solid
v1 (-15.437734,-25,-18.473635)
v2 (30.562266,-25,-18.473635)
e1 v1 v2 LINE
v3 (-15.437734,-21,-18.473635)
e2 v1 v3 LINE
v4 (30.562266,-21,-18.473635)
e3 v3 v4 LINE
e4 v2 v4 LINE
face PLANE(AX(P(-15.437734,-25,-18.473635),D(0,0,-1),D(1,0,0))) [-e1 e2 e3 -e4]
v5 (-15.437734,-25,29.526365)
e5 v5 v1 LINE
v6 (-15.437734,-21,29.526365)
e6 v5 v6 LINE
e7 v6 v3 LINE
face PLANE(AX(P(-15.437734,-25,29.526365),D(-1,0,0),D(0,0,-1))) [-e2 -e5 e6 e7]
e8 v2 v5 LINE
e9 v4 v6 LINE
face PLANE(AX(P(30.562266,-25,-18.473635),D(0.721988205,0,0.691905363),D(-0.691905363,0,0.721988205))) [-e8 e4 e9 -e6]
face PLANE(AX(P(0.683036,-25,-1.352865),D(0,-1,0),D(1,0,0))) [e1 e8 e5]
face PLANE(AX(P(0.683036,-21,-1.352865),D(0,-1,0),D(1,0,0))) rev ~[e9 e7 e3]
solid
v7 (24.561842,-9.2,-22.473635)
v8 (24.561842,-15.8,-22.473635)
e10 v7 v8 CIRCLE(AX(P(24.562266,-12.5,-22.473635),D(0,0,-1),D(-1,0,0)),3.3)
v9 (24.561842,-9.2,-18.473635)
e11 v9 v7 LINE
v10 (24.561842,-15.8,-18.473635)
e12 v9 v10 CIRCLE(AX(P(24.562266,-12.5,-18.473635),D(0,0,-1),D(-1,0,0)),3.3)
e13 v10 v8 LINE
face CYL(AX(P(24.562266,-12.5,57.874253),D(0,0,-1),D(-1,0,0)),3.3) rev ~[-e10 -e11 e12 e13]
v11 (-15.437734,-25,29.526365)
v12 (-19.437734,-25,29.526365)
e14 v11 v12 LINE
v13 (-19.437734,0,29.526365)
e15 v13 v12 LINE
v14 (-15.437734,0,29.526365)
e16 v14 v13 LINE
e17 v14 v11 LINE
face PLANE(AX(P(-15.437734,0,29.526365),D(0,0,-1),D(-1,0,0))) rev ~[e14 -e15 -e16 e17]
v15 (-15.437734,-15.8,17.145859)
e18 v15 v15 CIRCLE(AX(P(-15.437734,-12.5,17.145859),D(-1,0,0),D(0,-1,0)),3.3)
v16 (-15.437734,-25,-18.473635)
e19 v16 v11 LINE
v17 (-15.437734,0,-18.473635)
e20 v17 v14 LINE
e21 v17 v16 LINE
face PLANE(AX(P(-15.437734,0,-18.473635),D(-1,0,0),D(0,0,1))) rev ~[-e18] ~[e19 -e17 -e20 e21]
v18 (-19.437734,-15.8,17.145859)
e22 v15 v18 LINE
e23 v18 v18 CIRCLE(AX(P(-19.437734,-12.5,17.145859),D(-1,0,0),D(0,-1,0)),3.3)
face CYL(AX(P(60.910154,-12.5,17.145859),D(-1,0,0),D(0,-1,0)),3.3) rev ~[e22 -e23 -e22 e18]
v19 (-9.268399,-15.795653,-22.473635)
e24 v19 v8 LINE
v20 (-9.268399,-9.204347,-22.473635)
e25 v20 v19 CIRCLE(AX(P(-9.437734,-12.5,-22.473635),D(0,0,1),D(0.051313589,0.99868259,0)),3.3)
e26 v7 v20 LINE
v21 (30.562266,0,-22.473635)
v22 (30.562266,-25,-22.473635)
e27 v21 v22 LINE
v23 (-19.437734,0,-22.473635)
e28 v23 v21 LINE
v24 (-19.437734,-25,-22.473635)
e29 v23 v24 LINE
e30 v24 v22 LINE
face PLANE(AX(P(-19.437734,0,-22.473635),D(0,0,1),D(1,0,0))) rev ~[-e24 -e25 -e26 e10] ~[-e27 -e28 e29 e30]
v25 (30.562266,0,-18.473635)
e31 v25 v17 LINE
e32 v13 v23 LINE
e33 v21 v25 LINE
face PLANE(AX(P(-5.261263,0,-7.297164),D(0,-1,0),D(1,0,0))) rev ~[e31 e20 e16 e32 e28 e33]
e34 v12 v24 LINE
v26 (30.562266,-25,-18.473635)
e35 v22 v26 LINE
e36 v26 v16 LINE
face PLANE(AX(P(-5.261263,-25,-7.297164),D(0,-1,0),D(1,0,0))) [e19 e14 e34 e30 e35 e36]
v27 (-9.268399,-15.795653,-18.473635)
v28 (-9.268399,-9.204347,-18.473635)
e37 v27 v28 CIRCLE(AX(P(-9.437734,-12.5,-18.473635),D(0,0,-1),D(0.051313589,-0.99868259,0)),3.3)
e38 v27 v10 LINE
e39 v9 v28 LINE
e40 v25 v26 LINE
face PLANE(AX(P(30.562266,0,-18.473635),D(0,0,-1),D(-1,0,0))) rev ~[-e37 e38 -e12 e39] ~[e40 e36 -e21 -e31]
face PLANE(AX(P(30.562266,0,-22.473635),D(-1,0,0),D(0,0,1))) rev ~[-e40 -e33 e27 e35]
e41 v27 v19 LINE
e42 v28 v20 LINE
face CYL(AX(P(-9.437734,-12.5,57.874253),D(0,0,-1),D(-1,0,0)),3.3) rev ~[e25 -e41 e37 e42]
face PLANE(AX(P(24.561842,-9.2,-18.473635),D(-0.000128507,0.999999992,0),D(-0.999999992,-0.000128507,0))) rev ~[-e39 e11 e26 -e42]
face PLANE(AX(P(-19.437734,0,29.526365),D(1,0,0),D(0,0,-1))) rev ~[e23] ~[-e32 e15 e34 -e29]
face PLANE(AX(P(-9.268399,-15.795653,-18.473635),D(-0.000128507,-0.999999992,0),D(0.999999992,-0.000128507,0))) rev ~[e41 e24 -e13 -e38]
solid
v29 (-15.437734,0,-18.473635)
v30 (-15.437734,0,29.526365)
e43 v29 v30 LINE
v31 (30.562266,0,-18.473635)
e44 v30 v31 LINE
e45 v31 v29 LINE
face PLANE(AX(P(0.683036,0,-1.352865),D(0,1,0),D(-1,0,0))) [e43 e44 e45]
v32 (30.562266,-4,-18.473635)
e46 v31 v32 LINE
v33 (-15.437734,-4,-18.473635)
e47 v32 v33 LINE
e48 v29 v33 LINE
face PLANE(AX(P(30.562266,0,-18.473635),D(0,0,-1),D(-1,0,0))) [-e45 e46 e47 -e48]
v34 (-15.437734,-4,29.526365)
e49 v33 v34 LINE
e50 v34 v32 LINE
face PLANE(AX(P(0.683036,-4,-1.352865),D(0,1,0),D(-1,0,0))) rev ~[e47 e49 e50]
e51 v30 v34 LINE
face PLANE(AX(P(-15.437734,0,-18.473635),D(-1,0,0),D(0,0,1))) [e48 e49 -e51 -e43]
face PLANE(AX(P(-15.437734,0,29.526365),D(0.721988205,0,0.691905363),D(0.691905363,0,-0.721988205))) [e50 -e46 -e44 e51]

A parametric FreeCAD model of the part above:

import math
import FreeCAD as App
import Part
import Sketcher
Q = App.Units.Quantity

doc = App.newDocument("Part")
params = doc.addObject("Spreadsheet::Sheet", "Params")
for row, (alias, value) in enumerate([
    ("sketch1_width", "4 mm"),
    ("sketch1_width2", "50 mm"),
    ("sketch1_height", "52 mm"),
    ("pad1_length", "25 mm"),
    ("sketch2_diameter", "6.6 mm"),
    ("hole_diameter", "6.6 mm"),
    ("sketch3_diameter", "6.6 mm"),
    ("hole2_diameter", "6.6 mm"),
    ("sketch4_radius", "3.3 mm"),
    ("pocket1_length", "25 mm"),
    ("sketch5_width", "46 mm"),
    ("sketch5_height", "48 mm"),
    ("pad2_length", "4 mm"),
    ("sketch6_width", "46 mm"),
    ("sketch6_height", "48 mm"),
    ("pad3_length", "4 mm"),
], start=1):
    params.set(f"A{row}", alias)
    params.set(f"B{row}", "=" + value)
    params.setAlias(f"B{row}", alias)

body = doc.addObject("PartDesign::Body", "Body")

# Sketch on XZ plane
sketch1 = body.newObject("Sketcher::SketchObject", "Sketch")
sketch1.AttachmentSupport = (doc.getObject("XZ_Plane"), [""])
sketch1.MapMode = "FlatFace"
sketch1.addGeometry([
    Part.LineSegment(App.Vector(-15.437734, 29.526365, 0), App.Vector(-19.437734, 29.526365, 0)),  # 0
    Part.LineSegment(App.Vector(-19.437734, 29.526365, 0), App.Vector(-19.437734, -22.473635, 0)),  # 1
    Part.LineSegment(App.Vector(-19.437734, -22.473635, 0), App.Vector(30.562266, -22.473635, 0)),  # 2
    Part.LineSegment(App.Vector(30.562266, -22.473635, 0), App.Vector(30.562266, -18.473635, 0)),  # 3
    Part.LineSegment(App.Vector(30.562266, -18.473635, 0), App.Vector(-15.437734, -18.473635, 0)),  # 4
    Part.LineSegment(App.Vector(-15.437734, -18.473635, 0), App.Vector(-15.437734, 29.526365, 0)),  # 5
], False)
sketch1.addConstraint([
    Sketcher.Constraint("Coincident", 0, 2, 1, 1),
    Sketcher.Constraint("Coincident", 1, 2, 2, 1),
    Sketcher.Constraint("Coincident", 2, 2, 3, 1),
    Sketcher.Constraint("Coincident", 3, 2, 4, 1),
    Sketcher.Constraint("Coincident", 4, 2, 5, 1),
    Sketcher.Constraint("Coincident", 5, 2, 0, 1),
    Sketcher.Constraint("Horizontal", 0),
    Sketcher.Constraint("Vertical", 1),
    Sketcher.Constraint("Horizontal", 2),
    Sketcher.Constraint("Vertical", 3),
    Sketcher.Constraint("Horizontal", 4),
    Sketcher.Constraint("Vertical", 5),
    Sketcher.Constraint("Equal", 0, 3),
    Sketcher.Constraint("DistanceX", 0, 2, 0, 1, Q("4 mm")),
    Sketcher.Constraint("DistanceX", 2, 1, 2, 2, Q("50 mm")),
    Sketcher.Constraint("DistanceY", 1, 2, 1, 1, Q("52 mm")),
    Sketcher.Constraint("DistanceX", 0, 2, -1, 1, Q("19.437734 mm")),
    Sketcher.Constraint("DistanceY", -1, 1, 0, 2, Q("29.526365 mm")),
])
sketch1.setExpression("Constraints[13]", "Params.sketch1_width")
sketch1.setExpression("Constraints[14]", "Params.sketch1_width2")
sketch1.setExpression("Constraints[15]", "Params.sketch1_height")
pad1 = body.newObject("PartDesign::Pad", "Pad")
pad1.Profile = sketch1
pad1.setExpression("Length", "Params.pad1_length")

# Sketch on YZ plane
sketch2 = body.newObject("Sketcher::SketchObject", "Sketch001")
sketch2.AttachmentSupport = (doc.getObject("YZ_Plane"), [""])
sketch2.MapMode = "FlatFace"
sketch2.AttachmentOffset = App.Placement(App.Vector(0, 0, -15.437734), App.Rotation())
sketch2.addGeometry(Part.Circle(App.Vector(-12.5, 17.145859, 0), App.Vector(0, 0, 1), 3.3), False)
sketch2.addConstraint([
    Sketcher.Constraint("Diameter", 0, Q("6.6 mm")),
    Sketcher.Constraint("DistanceX", 0, 3, -1, 1, Q("12.5 mm")),
    Sketcher.Constraint("DistanceY", -1, 1, 0, 3, Q("17.145859 mm")),
])
sketch2.setExpression("Constraints[0]", "Params.sketch2_diameter")
doc.recompute()
hole = body.newObject("PartDesign::Hole", "Hole")
hole.Profile = sketch2
hole.ThreadType = "None"
hole.setExpression("Diameter", "Params.hole_diameter")
hole.DepthType = "ThroughAll"

# Sketch on XY plane
sketch3 = body.newObject("Sketcher::SketchObject", "Sketch002")
sketch3.AttachmentSupport = (doc.getObject("XY_Plane"), [""])
sketch3.MapMode = "FlatFace"
sketch3.AttachmentOffset = App.Placement(App.Vector(0, 0, -18.473635), App.Rotation())
sketch3.addGeometry([
    Part.Circle(App.Vector(-9.437734, -12.5, 0), App.Vector(0, 0, 1), 3.3),
    Part.Circle(App.Vector(24.562266, -12.5, 0), App.Vector(0, 0, 1), 3.3),
], False)
sketch3.addConstraint([
    Sketcher.Constraint("Equal", 0, 1),
    Sketcher.Constraint("Horizontal", 0, 3, 1, 3),
    Sketcher.Constraint("Diameter", 0, Q("6.6 mm")),
    Sketcher.Constraint("DistanceX", 0, 3, 1, 3, Q("34 mm")),
    Sketcher.Constraint("DistanceY", 0, 3, -1, 1, Q("12.5 mm")),
    Sketcher.Constraint("DistanceX", 0, 3, -1, 1, Q("9.437734 mm")),
])
sketch3.setExpression("Constraints[2]", "Params.sketch3_diameter")
doc.recompute()
hole2 = body.newObject("PartDesign::Hole", "Hole001")
hole2.Profile = sketch3
hole2.ThreadType = "None"
hole2.setExpression("Diameter", "Params.hole2_diameter")
hole2.DepthType = "ThroughAll"

# Sketch on XY plane
sketch4 = body.newObject("Sketcher::SketchObject", "Sketch003")
sketch4.AttachmentSupport = (doc.getObject("XY_Plane"), [""])
sketch4.MapMode = "FlatFace"
sketch4.AttachmentOffset = App.Placement(App.Vector(0, 0, -18.473635), App.Rotation())
sketch4.addGeometry([
    Part.ArcOfCircle(Part.Circle(App.Vector(-9.437734, -12.5, 0), App.Vector(0, 0, 1), 3.3), math.radians(-87.058656), math.radians(0)),  # 0
    Part.LineSegment(App.Vector(-9.268399, -15.795653, 0), App.Vector(24.561842, -15.8, 0)),  # 1
    Part.ArcOfCircle(Part.Circle(App.Vector(24.562266, -12.5, 0), App.Vector(0, 0, 1), 3.3), math.radians(90.007363), math.radians(269.992637)),  # 2
    Part.LineSegment(App.Vector(24.561842, -9.2, 0), App.Vector(-9.268399, -9.204347, 0)),  # 3
    Part.ArcOfCircle(Part.Circle(App.Vector(-9.437734, -12.5, 0), App.Vector(0, 0, 1), 3.3), math.radians(0), math.radians(87.058656)),  # 4
], False)
sketch4.addConstraint([
    Sketcher.Constraint("Coincident", 0, 1, 1, 1),
    Sketcher.Constraint("Tangent", 1, 2, 2, 2),
    Sketcher.Constraint("Tangent", 2, 1, 3, 1),
    Sketcher.Constraint("Coincident", 3, 2, 4, 2),
    Sketcher.Constraint("Tangent", 4, 1, 0, 2),
    Sketcher.Constraint("Equal", 0, 2),
    Sketcher.Constraint("Equal", 2, 4),
    Sketcher.Constraint("Horizontal", 0, 3, 2, 3),
    Sketcher.Constraint("Horizontal", 2, 3, 4, 1),
    Sketcher.Constraint("Vertical", 0, 1, 3, 2),
    Sketcher.Constraint("Radius", 0, Q("3.3 mm")),
    Sketcher.Constraint("DistanceX", 0, 3, 2, 3, Q("34 mm")),
    Sketcher.Constraint("DistanceY", 0, 3, -1, 1, Q("12.5 mm")),
    Sketcher.Constraint("DistanceX", 0, 1, -1, 1, Q("9.268399 mm")),
    Sketcher.Constraint("Distance", 1, Q("33.830241 mm")),
])
sketch4.setExpression("Constraints[10]", "Params.sketch4_radius")
pocket1 = body.newObject("PartDesign::Pocket", "Pocket")
pocket1.Profile = sketch4
pocket1.setExpression("Length", "Params.pocket1_length")
body2 = doc.addObject("PartDesign::Body", "Body001")

# Sketch on XZ plane
sketch5 = body2.newObject("Sketcher::SketchObject", "Sketch004")
sketch5.AttachmentSupport = (doc.getObject("XZ_Plane001"), [""])
sketch5.MapMode = "FlatFace"
sketch5.AttachmentOffset = App.Placement(App.Vector(0, 0, 25), App.Rotation())
sketch5.addGeometry([
    Part.LineSegment(App.Vector(30.562266, -18.473635, 0), App.Vector(-15.437734, 29.526365, 0)),
    Part.LineSegment(App.Vector(-15.437734, 29.526365, 0), App.Vector(-15.437734, -18.473635, 0)),
    Part.LineSegment(App.Vector(-15.437734, -18.473635, 0), App.Vector(30.562266, -18.473635, 0)),
], False)
sketch5.addConstraint([
    Sketcher.Constraint("Coincident", 0, 2, 1, 1),
    Sketcher.Constraint("Coincident", 1, 2, 2, 1),
    Sketcher.Constraint("Coincident", 2, 2, 0, 1),
    Sketcher.Constraint("Vertical", 1),
    Sketcher.Constraint("Horizontal", 2),
    Sketcher.Constraint("DistanceX", 2, 1, 2, 2, Q("46 mm")),
    Sketcher.Constraint("DistanceY", 1, 2, 1, 1, Q("48 mm")),
    Sketcher.Constraint("DistanceX", 0, 2, -1, 1, Q("15.437734 mm")),
    Sketcher.Constraint("DistanceY", -1, 1, 0, 2, Q("29.526365 mm")),
])
sketch5.setExpression("Constraints[5]", "Params.sketch5_width")
sketch5.setExpression("Constraints[6]", "Params.sketch5_height")
pad2 = body2.newObject("PartDesign::Pad", "Pad001")
pad2.Profile = sketch5
pad2.setExpression("Length", "Params.pad2_length")
pad2.Reversed = True
body3 = doc.addObject("PartDesign::Body", "Body002")

# Sketch on XZ plane
sketch6 = body3.newObject("Sketcher::SketchObject", "Sketch005")
sketch6.AttachmentSupport = (doc.getObject("XZ_Plane002"), [""])
sketch6.MapMode = "FlatFace"
sketch6.addGeometry([
    Part.LineSegment(App.Vector(-15.437734, -18.473635, 0), App.Vector(-15.437734, 29.526365, 0)),
    Part.LineSegment(App.Vector(-15.437734, 29.526365, 0), App.Vector(30.562266, -18.473635, 0)),
    Part.LineSegment(App.Vector(30.562266, -18.473635, 0), App.Vector(-15.437734, -18.473635, 0)),
], False)
sketch6.addConstraint([
    Sketcher.Constraint("Coincident", 0, 2, 1, 1),
    Sketcher.Constraint("Coincident", 1, 2, 2, 1),
    Sketcher.Constraint("Coincident", 2, 2, 0, 1),
    Sketcher.Constraint("Vertical", 0),
    Sketcher.Constraint("Horizontal", 2),
    Sketcher.Constraint("DistanceX", 2, 2, 2, 1, Q("46 mm")),
    Sketcher.Constraint("DistanceY", 0, 1, 0, 2, Q("48 mm")),
    Sketcher.Constraint("DistanceX", 0, 2, -1, 1, Q("15.437734 mm")),
    Sketcher.Constraint("DistanceY", -1, 1, 0, 2, Q("29.526365 mm")),
])
sketch6.setExpression("Constraints[5]", "Params.sketch6_width")
sketch6.setExpression("Constraints[6]", "Params.sketch6_height")
pad3 = body3.newObject("PartDesign::Pad", "Pad002")
pad3.Profile = sketch6
pad3.setExpression("Length", "Params.pad3_length")

doc.recompute()
